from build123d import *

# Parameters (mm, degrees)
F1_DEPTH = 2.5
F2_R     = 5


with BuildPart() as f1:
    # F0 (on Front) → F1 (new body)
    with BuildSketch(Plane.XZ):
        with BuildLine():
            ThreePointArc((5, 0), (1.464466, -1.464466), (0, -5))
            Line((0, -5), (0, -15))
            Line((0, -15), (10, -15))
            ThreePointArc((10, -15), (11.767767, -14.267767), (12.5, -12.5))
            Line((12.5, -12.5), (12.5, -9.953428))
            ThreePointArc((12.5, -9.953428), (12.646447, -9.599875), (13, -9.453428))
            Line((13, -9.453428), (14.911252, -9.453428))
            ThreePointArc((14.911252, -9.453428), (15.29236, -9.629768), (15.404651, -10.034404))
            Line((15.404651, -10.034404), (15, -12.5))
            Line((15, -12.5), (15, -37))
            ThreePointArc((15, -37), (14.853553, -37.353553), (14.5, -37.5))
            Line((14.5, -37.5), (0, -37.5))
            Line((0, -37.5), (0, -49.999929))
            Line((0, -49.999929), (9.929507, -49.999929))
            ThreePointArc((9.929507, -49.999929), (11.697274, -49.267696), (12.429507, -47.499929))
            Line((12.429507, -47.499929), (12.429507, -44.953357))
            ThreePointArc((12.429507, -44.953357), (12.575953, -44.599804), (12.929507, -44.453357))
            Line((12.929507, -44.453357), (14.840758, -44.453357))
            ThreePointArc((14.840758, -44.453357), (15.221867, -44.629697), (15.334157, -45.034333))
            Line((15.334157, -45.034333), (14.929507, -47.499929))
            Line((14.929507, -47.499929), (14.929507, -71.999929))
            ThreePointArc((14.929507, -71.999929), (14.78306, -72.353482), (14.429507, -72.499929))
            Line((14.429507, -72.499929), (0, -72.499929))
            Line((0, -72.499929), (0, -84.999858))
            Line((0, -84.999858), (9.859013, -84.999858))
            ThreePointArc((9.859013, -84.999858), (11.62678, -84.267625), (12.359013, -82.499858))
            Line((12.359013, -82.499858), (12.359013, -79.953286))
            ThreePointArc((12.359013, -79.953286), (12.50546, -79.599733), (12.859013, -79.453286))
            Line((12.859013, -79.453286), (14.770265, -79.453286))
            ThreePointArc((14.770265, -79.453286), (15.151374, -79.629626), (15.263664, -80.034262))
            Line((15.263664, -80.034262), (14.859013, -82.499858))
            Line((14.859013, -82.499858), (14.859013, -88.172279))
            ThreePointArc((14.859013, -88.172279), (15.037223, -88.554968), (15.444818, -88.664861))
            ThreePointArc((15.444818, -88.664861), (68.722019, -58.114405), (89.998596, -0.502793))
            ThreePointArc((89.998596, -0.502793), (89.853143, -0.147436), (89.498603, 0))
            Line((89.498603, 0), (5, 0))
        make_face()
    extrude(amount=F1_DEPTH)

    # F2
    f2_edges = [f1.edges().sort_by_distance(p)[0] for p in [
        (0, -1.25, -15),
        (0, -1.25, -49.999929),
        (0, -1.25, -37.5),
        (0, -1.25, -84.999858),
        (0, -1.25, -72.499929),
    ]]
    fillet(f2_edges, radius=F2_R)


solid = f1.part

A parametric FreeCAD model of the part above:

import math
import FreeCAD as App
import Part
import Sketcher
Q = App.Units.Quantity


def edges_at(feature, points):
    """Names of the edges that pass closest to the given points."""
    edges = feature.Shape.Edges
    near = lambda p: min(range(len(edges)), key=lambda i: edges[i].distToShape(Part.Vertex(*p))[0])
    return sorted({f"Edge{near(p) + 1}" for p in points})

doc = App.newDocument("Part")
body = doc.addObject("PartDesign::Body", "Body")

# Sketch on XZ plane
sketch1 = body.newObject("Sketcher::SketchObject", "Sketch")
sketch1.AttachmentSupport = (doc.getObject("XZ_Plane"), [""])
sketch1.MapMode = "FlatFace"
sketch1.addGeometry(Part.ArcOfCircle(Part.Circle(App.Vector(5, -5, 0), App.Vector(0, 0, 1), 5), math.radians(90), math.radians(180)), False)
sketch1.addGeometry(Part.LineSegment(App.Vector(0, -5, 0), App.Vector(0, -15, 0)), False)
sketch1.addGeometry(Part.LineSegment(App.Vector(0, -15, 0), App.Vector(10, -15, 0)), False)
sketch1.addGeometry(Part.ArcOfCircle(Part.Circle(App.Vector(10, -12.5, 0), App.Vector(0, 0, 1), 2.5), math.radians(-90), math.radians(0)), False)
sketch1.addGeometry(Part.LineSegment(App.Vector(12.5, -12.5, 0), App.Vector(12.5, -9.95, 0)), False)
sketch1.addGeometry(Part.ArcOfCircle(Part.Circle(App.Vector(13, -9.95, 0), App.Vector(0, 0, 1), 0.5), math.radians(90), math.radians(180)), False)
sketch1.addGeometry(Part.LineSegment(App.Vector(13, -9.45, 0), App.Vector(14.91, -9.45, 0)), False)
sketch1.addGeometry(Part.ArcOfCircle(Part.Circle(App.Vector(14.91, -9.95, 0), App.Vector(0, 0, 1), 0.5), math.radians(-9), math.radians(90)), False)
sketch1.addGeometry(Part.LineSegment(App.Vector(15.4, -10.03, 0), App.Vector(15, -12.5, 0)), False)
sketch1.addGeometry(Part.LineSegment(App.Vector(15, -12.5, 0), App.Vector(15, -37, 0)), False)
sketch1.addGeometry(Part.ArcOfCircle(Part.Circle(App.Vector(14.5, -37, 0), App.Vector(0, 0, 1), 0.5), math.radians(-90), math.radians(0)), False)
sketch1.addGeometry(Part.LineSegment(App.Vector(14.5, -37.5, 0), App.Vector(0, -37.5, 0)), False)
sketch1.addGeometry(Part.LineSegment(App.Vector(0, -37.5, 0), App.Vector(0, -50, 0)), False)
sketch1.addGeometry(Part.LineSegment(App.Vector(0, -50, 0), App.Vector(9.93, -50, 0)), False)
sketch1.addGeometry(Part.ArcOfCircle(Part.Circle(App.Vector(9.93, -47.5, 0), App.Vector(0, 0, 1), 2.5), math.radians(-90), math.radians(0)), False)
sketch1.addGeometry(Part.LineSegment(App.Vector(12.43, -47.5, 0), App.Vector(12.43, -44.95, 0)), False)
sketch1.addGeometry(Part.ArcOfCircle(Part.Circle(App.Vector(12.93, -44.95, 0), App.Vector(0, 0, 1), 0.5), math.radians(90), math.radians(180)), False)
sketch1.addGeometry(Part.LineSegment(App.Vector(12.93, -44.45, 0), App.Vector(14.84, -44.45, 0)), False)
sketch1.addGeometry(Part.ArcOfCircle(Part.Circle(App.Vector(14.84, -44.95, 0), App.Vector(0, 0, 1), 0.5), math.radians(-9), math.radians(90)), False)
sketch1.addGeometry(Part.LineSegment(App.Vector(15.33, -45.03, 0), App.Vector(14.93, -47.5, 0)), False)
sketch1.addGeometry(Part.LineSegment(App.Vector(14.93, -47.5, 0), App.Vector(14.93, -72, 0)), False)
sketch1.addGeometry(Part.ArcOfCircle(Part.Circle(App.Vector(14.43, -72, 0), App.Vector(0, 0, 1), 0.5), math.radians(-90), math.radians(0)), False)
sketch1.addGeometry(Part.LineSegment(App.Vector(14.43, -72.5, 0), App.Vector(0, -72.5, 0)), False)
sketch1.addGeometry(Part.LineSegment(App.Vector(0, -72.5, 0), App.Vector(0, -85, 0)), False)
sketch1.addGeometry(Part.LineSegment(App.Vector(0, -85, 0), App.Vector(9.86, -85, 0)), False)
sketch1.addGeometry(Part.ArcOfCircle(Part.Circle(App.Vector(9.86, -82.5, 0), App.Vector(0, 0, 1), 2.5), math.radians(-90), math.radians(0)), False)
sketch1.addGeometry(Part.LineSegment(App.Vector(12.36, -82.5, 0), App.Vector(12.36, -79.95, 0)), False)
sketch1.addGeometry(Part.ArcOfCircle(Part.Circle(App.Vector(12.86, -79.95, 0), App.Vector(0, 0, 1), 0.5), math.radians(90), math.radians(180)), False)
sketch1.addGeometry(Part.LineSegment(App.Vector(12.86, -79.45, 0), App.Vector(14.77, -79.45, 0)), False)
sketch1.addGeometry(Part.ArcOfCircle(Part.Circle(App.Vector(14.77, -79.95, 0), App.Vector(0, 0, 1), 0.5), math.radians(-9), math.radians(90)), False)
sketch1.addGeometry(Part.LineSegment(App.Vector(15.26, -80.03, 0), App.Vector(14.86, -82.5, 0)), False)
sketch1.addGeometry(Part.LineSegment(App.Vector(14.86, -82.5, 0), App.Vector(14.86, -88.17, 0)), False)
sketch1.addGeometry(Part.ArcOfCircle(Part.Circle(App.Vector(15.36, -88.17, 0), App.Vector(0, 0, 1), 0.5), math.radians(-180), math.radians(-80)), False)
sketch1.addGeometry(Part.ArcOfCircle(Part.Circle(App.Vector(0, 0, 0), App.Vector(0, 0, 1), 90), math.radians(-80), math.radians(0)), False)
sketch1.addGeometry(Part.ArcOfCircle(Part.Circle(App.Vector(89.5, -0.5, 0), App.Vector(0, 0, 1), 0.5), math.radians(0), math.radians(90)), False)
sketch1.addGeometry(Part.LineSegment(App.Vector(89.5, 0, 0), App.Vector(5, 0, 0)), False)
sketch1.addConstraint(Sketcher.Constraint("Tangent", 0, 2, 1, 1))
sketch1.addConstraint(Sketcher.Constraint("Coincident", 1, 2, 2, 1))
sketch1.addConstraint(Sketcher.Constraint("Tangent", 2, 2, 3, 1))
sketch1.addConstraint(Sketcher.Constraint("Tangent", 3, 2, 4, 1))
sketch1.addConstraint(Sketcher.Constraint("Coincident", 4, 2, 5, 2))
sketch1.addConstraint(Sketcher.Constraint("Coincident", 5, 1, 6, 1))
sketch1.addConstraint(Sketcher.Constraint("Coincident", 6, 2, 7, 2))
sketch1.addConstraint(Sketcher.Constraint("Coincident", 7, 1, 8, 1))
sketch1.addConstraint(Sketcher.Constraint("Coincident", 8, 2, 9, 1))
sketch1.addConstraint(Sketcher.Constraint("Coincident", 9, 2, 10, 2))
sketch1.addConstraint(Sketcher.Constraint("Coincident", 10, 1, 11, 1))
sketch1.addConstraint(Sketcher.Constraint("Coincident", 11, 2, 12, 1))
sketch1.addConstraint(Sketcher.Constraint("Coincident", 12, 2, 13, 1))
sketch1.addConstraint(Sketcher.Constraint("Tangent", 13, 2, 14, 1))
sketch1.addConstraint(Sketcher.Constraint("Tangent", 14, 2, 15, 1))
sketch1.addConstraint(Sketcher.Constraint("Tangent", 15, 2, 16, 2))
sketch1.addConstraint(Sketcher.Constraint("Tangent", 16, 1, 17, 1))
sketch1.addConstraint(Sketcher.Constraint("Tangent", 17, 2, 18, 2))
sketch1.addConstraint(Sketcher.Constraint("Tangent", 18, 1, 19, 1))
sketch1.addConstraint(Sketcher.Constraint("Coincident", 19, 2, 20, 1))
sketch1.addConstraint(Sketcher.Constraint("Coincident", 20, 2, 21, 2))
sketch1.addConstraint(Sketcher.Constraint("Coincident", 21, 1, 22, 1))
sketch1.addConstraint(Sketcher.Constraint("Coincident", 22, 2, 23, 1))
sketch1.addConstraint(Sketcher.Constraint("Coincident", 23, 2, 24, 1))
sketch1.addConstraint(Sketcher.Constraint("Tangent", 24, 2, 25, 1))
sketch1.addConstraint(Sketcher.Constraint("Tangent", 25, 2, 26, 1))
sketch1.addConstraint(Sketcher.Constraint("Coincident", 26, 2, 27, 2))
sketch1.addConstraint(Sketcher.Constraint("Coincident", 27, 1, 28, 1))
sketch1.addConstraint(Sketcher.Constraint("Tangent", 28, 2, 29, 2))
sketch1.addConstraint(Sketcher.Constraint("Tangent", 29, 1, 30, 1))
sketch1.addConstraint(Sketcher.Constraint("Coincident", 30, 2, 31, 1))
sketch1.addConstraint(Sketcher.Constraint("Tangent", 31, 2, 32, 1))
sketch1.addConstraint(Sketcher.Constraint("Tangent", 32, 2, 33, 1))
sketch1.addConstraint(Sketcher.Constraint("Coincident", 33, 2, 34, 1))
sketch1.addConstraint(Sketcher.Constraint("Tangent", 34, 2, 35, 1))
sketch1.addConstraint(Sketcher.Constraint("Tangent", 35, 2, 0, 1))
sketch1.addConstraint(Sketcher.Constraint("Vertical", 1))
sketch1.addConstraint(Sketcher.Constraint("Horizontal", 2))
sketch1.addConstraint(Sketcher.Constraint("Vertical", 4))
sketch1.addConstraint(Sketcher.Constraint("Horizontal", 6))
sketch1.addConstraint(Sketcher.Constraint("Vertical", 9))
sketch1.addConstraint(Sketcher.Constraint("Horizontal", 11))
sketch1.addConstraint(Sketcher.Constraint("Vertical", 12))
sketch1.addConstraint(Sketcher.Constraint("Horizontal", 13))
sketch1.addConstraint(Sketcher.Constraint("Vertical", 15))
sketch1.addConstraint(Sketcher.Constraint("Horizontal", 17))
sketch1.addConstraint(Sketcher.Constraint("Vertical", 20))
sketch1.addConstraint(Sketcher.Constraint("Horizontal", 22))
sketch1.addConstraint(Sketcher.Constraint("Vertical", 23))
sketch1.addConstraint(Sketcher.Constraint("Horizontal", 24))
sketch1.addConstraint(Sketcher.Constraint("Vertical", 26))
sketch1.addConstraint(Sketcher.Constraint("Horizontal", 28))
sketch1.addConstraint(Sketcher.Constraint("Vertical", 31))
sketch1.addConstraint(Sketcher.Constraint("Horizontal", 35))
sketch1.addConstraint(Sketcher.Constraint("Coincident", 33, 3, -1, 1))
sketch1.addConstraint(Sketcher.Constraint("Equal", 5, 7))
sketch1.addConstraint(Sketcher.Constraint("Equal", 7, 10))
sketch1.addConstraint(Sketcher.Constraint("Equal", 3, 14))
sketch1.addConstraint(Sketcher.Constraint("Equal", 10, 16))
sketch1.addConstraint(Sketcher.Constraint("Equal", 16, 18))
sketch1.addConstraint(Sketcher.Constraint("Equal", 18, 21))
sketch1.addConstraint(Sketcher.Constraint("Equal", 14, 25))
sketch1.addConstraint(Sketcher.Constraint("Equal", 21, 27))
sketch1.addConstraint(Sketcher.Constraint("Equal", 27, 29))
sketch1.addConstraint(Sketcher.Constraint("Equal", 29, 32))
sketch1.addConstraint(Sketcher.Constraint("Equal", 32, 34))
sketch1.addConstraint(Sketcher.Constraint("PointOnObject", 0, 2, -2))
sketch1.addConstraint(Sketcher.Constraint("PointOnObject", 11, 2, -2))
sketch1.addConstraint(Sketcher.Constraint("PointOnObject", 22, 2, -2))
sketch1.addConstraint(Sketcher.Constraint("PointOnObject", 34, 2, -1))
sketch1.addConstraint(Sketcher.Constraint("Parallel", 8, 19))
sketch1.addConstraint(Sketcher.Constraint("Parallel", 19, 30))
sketch1.addConstraint(Sketcher.Constraint("Horizontal", 7, 3, 4, 2))
sketch1.addConstraint(Sketcher.Constraint("Horizontal", 3, 2, 8, 2))
sketch1.addConstraint(Sketcher.Constraint("Horizontal", 10, 3, 9, 2))
sketch1.addConstraint(Sketcher.Constraint("Horizontal", 14, 2, 19, 2))
sketch1.addConstraint(Sketcher.Constraint("Horizontal", 21, 3, 20, 2))
sketch1.addConstraint(Sketcher.Constraint("Horizontal", 29, 3, 26, 2))
sketch1.addConstraint(Sketcher.Constraint("Horizontal", 25, 2, 30, 2))
sketch1.addConstraint(Sketcher.Constraint("Vertical", 7, 3, 6, 2))
sketch1.addConstraint(Sketcher.Constraint("Equal", 6, 17))
sketch1.addConstraint(Sketcher.Constraint("Equal", 17, 28))
sketch1.addConstraint(Sketcher.Constraint("Equal", 2, 1))
sketch1.addConstraint(Sketcher.Constraint("Equal", 4, 15))
sketch1.addConstraint(Sketcher.Constraint("Equal", 9, 20))
sketch1.addConstraint(Sketcher.Constraint("Equal", 12, 23))
sketch1.addConstraint(Sketcher.Constraint("Equal", 15, 26))
sketch1.addConstraint(Sketcher.Constraint("Equal", 8, 19))
sketch1.addConstraint(Sketcher.Constraint("Radius", 0, Q("5 mm")))
sketch1.addConstraint(Sketcher.Constraint("Radius", 33, Q("90.000001 mm")))
sketch1.addConstraint(Sketcher.Constraint("Radius", 3, Q("2.5 mm")))
sketch1.addConstraint(Sketcher.Constraint("Radius", 5, Q("0.500001 mm")))
sketch1.addConstraint(Sketcher.Constraint("DistanceX", 2, 1, 2, 2, Q("10 mm")))
sketch1.addConstraint(Sketcher.Constraint("DistanceX", 11, 2, 11, 1, Q("14.5 mm")))
sketch1.addConstraint(Sketcher.Constraint("DistanceY", 9, 2, 9, 1, Q("24.5 mm")))
sketch1.addConstraint(Sketcher.Constraint("DistanceX", -1, 1, 5, 1, Q("13 mm")))
sketch1.addConstraint(Sketcher.Constraint("DistanceX", -1, 1, 8, 2, Q("15 mm")))
sketch1.addConstraint(Sketcher.Constraint("DistanceX", 25, 2, 32, 3, Q("3 mm")))
sketch1.addConstraint(Sketcher.Constraint("DistanceX", 21, 1, 20, 2, Q("0.5 mm")))
sketch1.addConstraint(Sketcher.Constraint("DistanceX", 6, 1, 6, 2, Q("1.911252 mm")))
sketch1.addConstraint(Sketcher.Constraint("DistanceY", 4, 1, 4, 2, Q("2.546572 mm")))
sketch1.addConstraint(Sketcher.Constraint("DistanceY", 12, 2, 12, 1, Q("12.499929 mm")))
sketch1.addConstraint(Sketcher.Constraint("DistanceY", 31, 2, 31, 1, Q("5.672421 mm")))
sketch1.addConstraint(Sketcher.Constraint("DistanceX", 13, 1, 13, 2, Q("9.929507 mm")))
sketch1.addConstraint(Sketcher.Constraint("DistanceY", 33, 2, 34, 3, Q("0.002792 mm")))
pad1 = body.newObject("PartDesign::Pad", "Pad")
pad1.Profile = sketch1
pad1.Length = 2.5
doc.recompute()

fillet = body.newObject("PartDesign::Fillet", "Fillet")
fillet.Base = (pad1, edges_at(pad1, [
    (0, -1.25, -15),
    (0, -1.25, -50),
    (0, -1.25, -37.5),
    (0, -1.25, -85),
    (0, -1.25, -72.5),
]))
fillet.Radius = 5

doc.recompute()
